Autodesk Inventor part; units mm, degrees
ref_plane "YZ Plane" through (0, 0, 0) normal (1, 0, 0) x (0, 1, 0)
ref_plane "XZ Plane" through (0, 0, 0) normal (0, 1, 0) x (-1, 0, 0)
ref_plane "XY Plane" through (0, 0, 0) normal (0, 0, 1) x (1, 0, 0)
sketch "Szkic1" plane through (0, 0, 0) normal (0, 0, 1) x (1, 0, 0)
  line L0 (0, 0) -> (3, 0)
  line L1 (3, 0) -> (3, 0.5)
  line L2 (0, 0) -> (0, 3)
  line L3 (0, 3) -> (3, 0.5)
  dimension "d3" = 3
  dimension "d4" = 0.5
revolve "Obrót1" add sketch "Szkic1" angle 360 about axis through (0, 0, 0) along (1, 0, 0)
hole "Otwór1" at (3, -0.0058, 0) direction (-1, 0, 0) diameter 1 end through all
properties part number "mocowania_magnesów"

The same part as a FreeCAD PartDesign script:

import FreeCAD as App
import Part
import Sketcher
Q = App.Units.Quantity


def add_polygon(sketch, points):
    """Adds a closed chain of lines whose ends are joined by coincident constraints."""
    first, n = sketch.GeometryCount, len(points)
    for a, b in zip(points, points[1:] + points[:1]):
        sketch.addGeometry(Part.LineSegment(App.Vector(*a, 0), App.Vector(*b, 0)), False)
    for i in range(n):
        sketch.addConstraint(Sketcher.Constraint("Coincident", first + i, 2, first + (i + 1) % n, 1))

doc = App.newDocument("Part")
body = doc.addObject("PartDesign::Body", "Body")

# Sketch on XY plane
sketch1 = body.newObject("Sketcher::SketchObject", "Sketch")
sketch1.AttachmentSupport = (doc.getObject("XY_Plane"), [""])
sketch1.MapMode = "FlatFace"
add_polygon(sketch1, [(0, 3), (0, 0), (3, 0), (3, 0.5)])  # lines 0-3
sketch1.addConstraint(Sketcher.Constraint("Vertical", 0))
sketch1.addConstraint(Sketcher.Constraint("Horizontal", 1))
sketch1.addConstraint(Sketcher.Constraint("Vertical", 2))
sketch1.addConstraint(Sketcher.Constraint("Coincident", 0, 2, -1, 1))
sketch1.addConstraint(Sketcher.Constraint("Equal", 1, 0))
sketch1.addConstraint(Sketcher.Constraint("DistanceX", 1, 1, 1, 2, Q("3 mm")))
sketch1.addConstraint(Sketcher.Constraint("DistanceY", 2, 1, 2, 2, Q("0.5 mm")))
revolution = body.newObject("PartDesign::Revolution", "Revolution")
revolution.Profile = sketch1
revolution.ReferenceAxis = (sketch1, ["H_Axis"])
revolution.Angle = 360

# Sketch on YZ plane
sketch2 = body.newObject("Sketcher::SketchObject", "Sketch001")
sketch2.AttachmentSupport = (doc.getObject("YZ_Plane"), [""])
sketch2.MapMode = "FlatFace"
sketch2.AttachmentOffset = App.Placement(App.Vector(0, 0, 3), App.Rotation())
sketch2.addGeometry(Part.Circle(App.Vector(0, 0, 0), App.Vector(0, 0, 1), 0.5), False)
sketch2.addConstraint(Sketcher.Constraint("PointOnObject", 0, 3, -1))
sketch2.addConstraint(Sketcher.Constraint("Diameter", 0, Q("1 mm")))
sketch2.addConstraint(Sketcher.Constraint("DistanceX", 0, 3, -1, 1, Q("0.0058 mm")))
doc.recompute()
hole = body.newObject("PartDesign::Hole", "Hole")
hole.Profile = sketch2
hole.ThreadType = "None"
hole.Diameter = 1
hole.DepthType = "ThroughAll"

doc.recompute()
